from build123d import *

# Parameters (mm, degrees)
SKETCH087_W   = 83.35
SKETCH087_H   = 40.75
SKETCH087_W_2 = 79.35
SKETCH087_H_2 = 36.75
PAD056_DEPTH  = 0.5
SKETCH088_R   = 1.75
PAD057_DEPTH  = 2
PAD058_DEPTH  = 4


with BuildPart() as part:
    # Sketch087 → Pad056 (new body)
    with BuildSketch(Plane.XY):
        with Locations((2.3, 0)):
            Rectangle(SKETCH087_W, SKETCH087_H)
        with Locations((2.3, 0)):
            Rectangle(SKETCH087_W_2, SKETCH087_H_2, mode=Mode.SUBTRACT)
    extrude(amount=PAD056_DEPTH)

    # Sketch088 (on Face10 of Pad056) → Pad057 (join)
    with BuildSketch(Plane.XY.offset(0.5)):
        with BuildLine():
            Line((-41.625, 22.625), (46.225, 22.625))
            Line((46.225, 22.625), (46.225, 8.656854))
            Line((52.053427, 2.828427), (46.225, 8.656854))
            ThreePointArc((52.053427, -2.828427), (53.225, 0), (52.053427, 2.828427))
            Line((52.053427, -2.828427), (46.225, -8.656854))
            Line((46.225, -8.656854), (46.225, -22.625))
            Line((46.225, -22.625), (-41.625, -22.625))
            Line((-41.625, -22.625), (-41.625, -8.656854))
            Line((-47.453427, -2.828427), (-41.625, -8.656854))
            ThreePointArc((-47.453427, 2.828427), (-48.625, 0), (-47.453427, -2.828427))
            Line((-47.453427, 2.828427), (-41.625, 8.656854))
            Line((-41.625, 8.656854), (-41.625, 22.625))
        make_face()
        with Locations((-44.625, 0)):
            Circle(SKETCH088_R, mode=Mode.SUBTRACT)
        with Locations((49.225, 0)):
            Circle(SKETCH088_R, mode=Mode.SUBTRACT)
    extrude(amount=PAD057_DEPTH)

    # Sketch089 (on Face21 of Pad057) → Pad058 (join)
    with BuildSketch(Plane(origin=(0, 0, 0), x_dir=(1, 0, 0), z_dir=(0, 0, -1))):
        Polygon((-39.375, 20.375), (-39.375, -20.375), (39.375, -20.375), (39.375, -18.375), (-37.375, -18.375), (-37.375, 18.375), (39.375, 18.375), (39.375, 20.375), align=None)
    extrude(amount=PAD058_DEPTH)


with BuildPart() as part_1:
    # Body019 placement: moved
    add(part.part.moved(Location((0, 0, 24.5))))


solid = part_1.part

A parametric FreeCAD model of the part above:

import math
import FreeCAD as App
import Part
import Sketcher
Q = App.Units.Quantity

doc = App.newDocument("Part")
body = doc.addObject("PartDesign::Body", "Body")

# Sketch on XY plane
sketch1 = body.newObject("Sketcher::SketchObject", "Sketch")
sketch1.AttachmentSupport = (doc.getObject("XY_Plane"), [""])
sketch1.MapMode = "FlatFace"
sketch1.addGeometry(Part.LineSegment(App.Vector(-39.375, 20.375, 0), App.Vector(-39.375, -20.375, 0)), False)
sketch1.addGeometry(Part.LineSegment(App.Vector(-39.375, -20.375, 0), App.Vector(43.975, -20.375, 0)), False)
sketch1.addGeometry(Part.LineSegment(App.Vector(43.975, -20.375, 0), App.Vector(43.975, 20.375, 0)), False)
sketch1.addGeometry(Part.LineSegment(App.Vector(43.975, 20.375, 0), App.Vector(-39.375, 20.375, 0)), False)
sketch1.addGeometry(Part.LineSegment(App.Vector(41.975, -18.375, 0), App.Vector(-37.375, -18.375, 0)), False)
sketch1.addGeometry(Part.LineSegment(App.Vector(-37.375, -18.375, 0), App.Vector(-37.375, 18.375, 0)), False)
sketch1.addGeometry(Part.LineSegment(App.Vector(-37.375, 18.375, 0), App.Vector(41.975, 18.375, 0)), False)
sketch1.addGeometry(Part.LineSegment(App.Vector(41.975, 18.375, 0), App.Vector(41.975, -18.375, 0)), False)
sketch1.addConstraint(Sketcher.Constraint("Coincident", 0, 2, 1, 1))
sketch1.addConstraint(Sketcher.Constraint("Coincident", 1, 2, 2, 1))
sketch1.addConstraint(Sketcher.Constraint("Coincident", 2, 2, 3, 1))
sketch1.addConstraint(Sketcher.Constraint("Coincident", 3, 2, 0, 1))
sketch1.addConstraint(Sketcher.Constraint("Coincident", 4, 2, 5, 1))
sketch1.addConstraint(Sketcher.Constraint("Coincident", 5, 2, 6, 1))
sketch1.addConstraint(Sketcher.Constraint("Coincident", 6, 2, 7, 1))
sketch1.addConstraint(Sketcher.Constraint("Coincident", 7, 2, 4, 1))
sketch1.addConstraint(Sketcher.Constraint("Vertical", 0))
sketch1.addConstraint(Sketcher.Constraint("Horizontal", 1))
sketch1.addConstraint(Sketcher.Constraint("Vertical", 2))
sketch1.addConstraint(Sketcher.Constraint("Horizontal", 3))
sketch1.addConstraint(Sketcher.Constraint("Horizontal", 4))
sketch1.addConstraint(Sketcher.Constraint("Vertical", 5))
sketch1.addConstraint(Sketcher.Constraint("Horizontal", 6))
sketch1.addConstraint(Sketcher.Constraint("Vertical", 7))
sketch1.addConstraint(Sketcher.Constraint("DistanceX", 0, 2, 4, 2, Q("2 mm")))
sketch1.addConstraint(Sketcher.Constraint("DistanceY", 0, 2, 4, 2, Q("2 mm")))
sketch1.addConstraint(Sketcher.Constraint("DistanceY", 5, 2, 3, 2, Q("2 mm")))
sketch1.addConstraint(Sketcher.Constraint("DistanceX", 6, 2, 2, 2, Q("2 mm")))
sketch1.addConstraint(Sketcher.Constraint("DistanceX", 1, 1, 1, 2, Q("83.35 mm")))
sketch1.addConstraint(Sketcher.Constraint("DistanceY", 0, 2, 0, 1, Q("40.75 mm")))
sketch1.addConstraint(Sketcher.Constraint("DistanceX", 0, 2, -1, 1, Q("39.375 mm")))
sketch1.addConstraint(Sketcher.Constraint("DistanceY", 0, 2, -1, 1, Q("20.375 mm")))
pad1 = body.newObject("PartDesign::Pad", "Pad")
pad1.Profile = sketch1
pad1.Length = 0.5

# Sketch on XY plane
sketch2 = body.newObject("Sketcher::SketchObject", "Sketch001")
sketch2.AttachmentSupport = (doc.getObject("XY_Plane"), [""])
sketch2.MapMode = "FlatFace"
sketch2.AttachmentOffset = App.Placement(App.Vector(0, 0, 0.5), App.Rotation())
sketch2.addGeometry(Part.LineSegment(App.Vector(46.225, 22.625, 0), App.Vector(-41.625, 22.625, 0)), False)
sketch2.addGeometry(Part.LineSegment(App.Vector(-41.625, 22.625, 0), App.Vector(-41.625, 8.656854, 0)), False)
sketch2.addGeometry(Part.LineSegment(App.Vector(-41.625, 8.656854, 0), App.Vector(-47.453427, 2.828427, 0)), False)
sketch2.addGeometry(Part.ArcOfCircle(Part.Circle(App.Vector(-44.625001, 0, 0), App.Vector(0, 0, 1), 3.999999), math.radians(134.999994), math.radians(225.000006)), False)
sketch2.addGeometry(Part.LineSegment(App.Vector(-47.453427, -2.828427, 0), App.Vector(-41.625, -8.656854, 0)), False)
sketch2.addGeometry(Part.LineSegment(App.Vector(-41.625, -8.656854, 0), App.Vector(-41.625, -22.625, 0)), False)
sketch2.addGeometry(Part.LineSegment(App.Vector(-41.625, -22.625, 0), App.Vector(46.225, -22.625, 0)), False)
sketch2.addGeometry(Part.LineSegment(App.Vector(46.225, -22.625, 0), App.Vector(46.225, -8.656854, 0)), False)
sketch2.addGeometry(Part.LineSegment(App.Vector(46.225, -8.656854, 0), App.Vector(52.053427, -2.828427, 0)), False)
sketch2.addGeometry(Part.ArcOfCircle(Part.Circle(App.Vector(49.225001, 0, 0), App.Vector(0, 0, 1), 3.999999), math.radians(-45.000006), math.radians(45.000006)), False)
sketch2.addGeometry(Part.LineSegment(App.Vector(52.053427, 2.828427, 0), App.Vector(46.225, 8.656854, 0)), False)
sketch2.addGeometry(Part.LineSegment(App.Vector(46.225, 8.656854, 0), App.Vector(46.225, 22.625, 0)), False)
sketch2.addGeometry(Part.Circle(App.Vector(49.225, 0, 0), App.Vector(0, 0, 1), 1.75), False)
sketch2.addGeometry(Part.Circle(App.Vector(-44.625, 0, 0), App.Vector(0, 0, 1), 1.75), False)
sketch2.addConstraint(Sketcher.Constraint("Coincident", 0, 2, 1, 1))
sketch2.addConstraint(Sketcher.Constraint("Coincident", 1, 2, 2, 1))
sketch2.addConstraint(Sketcher.Constraint("Tangent", 2, 2, 3, 1))
sketch2.addConstraint(Sketcher.Constraint("Tangent", 3, 2, 4, 1))
sketch2.addConstraint(Sketcher.Constraint("Coincident", 4, 2, 5, 1))
sketch2.addConstraint(Sketcher.Constraint("Coincident", 5, 2, 6, 1))
sketch2.addConstraint(Sketcher.Constraint("Coincident", 6, 2, 7, 1))
sketch2.addConstraint(Sketcher.Constraint("Coincident", 7, 2, 8, 1))
sketch2.addConstraint(Sketcher.Constraint("Tangent", 8, 2, 9, 1))
sketch2.addConstraint(Sketcher.Constraint("Tangent", 9, 2, 10, 1))
sketch2.addConstraint(Sketcher.Constraint("Coincident", 10, 2, 11, 1))
sketch2.addConstraint(Sketcher.Constraint("Coincident", 11, 2, 0, 1))
sketch2.addConstraint(Sketcher.Constraint("Horizontal", 0))
sketch2.addConstraint(Sketcher.Constraint("Vertical", 1))
sketch2.addConstraint(Sketcher.Constraint("Vertical", 5))
sketch2.addConstraint(Sketcher.Constraint("Horizontal", 6))
sketch2.addConstraint(Sketcher.Constraint("Vertical", 7))
sketch2.addConstraint(Sketcher.Constraint("Vertical", 11))
sketch2.addConstraint(Sketcher.Constraint("Coincident", 12, 3, 9, 3))
sketch2.addConstraint(Sketcher.Constraint("Coincident", 13, 3, 3, 3))
sketch2.addConstraint(Sketcher.Constraint("Equal", 3, 9))
sketch2.addConstraint(Sketcher.Constraint("Equal", 12, 13))
sketch2.addConstraint(Sketcher.Constraint("Symmetric", 2, 2, 3, 2, -1))
sketch2.addConstraint(Sketcher.Constraint("Symmetric", 0, 2, 5, 2, -1))
sketch2.addConstraint(Sketcher.Constraint("Symmetric", 8, 2, 9, 2, -1))
sketch2.addConstraint(Sketcher.Constraint("Perpendicular", 2, 4))
sketch2.addConstraint(Sketcher.Constraint("Perpendicular", 4, 8))
sketch2.addConstraint(Sketcher.Constraint("Horizontal", 4, 2, 7, 2))
sketch2.addConstraint(Sketcher.Constraint("Horizontal", 1, 2, 10, 2))
sketch2.addConstraint(Sketcher.Constraint("Radius", 3, Q("3.999999 mm")))
sketch2.addConstraint(Sketcher.Constraint("Diameter", 12, Q("3.5 mm")))
sketch2.addConstraint(Sketcher.Constraint("DistanceX", 13, 3, 0, 2, Q("3 mm")))
sketch2.addConstraint(Sketcher.Constraint("DistanceX", 0, 2, 0, 1, Q("87.85 mm")))
sketch2.addConstraint(Sketcher.Constraint("DistanceX", 3, 3, -1, 1, Q("44.625001 mm")))
sketch2.addConstraint(Sketcher.Constraint("DistanceY", -1, 1, 0, 2, Q("22.625 mm")))
pad2 = body.newObject("PartDesign::Pad", "Pad001")
pad2.Profile = sketch2
pad2.Length = 2

# Sketch on XY plane
sketch3 = body.newObject("Sketcher::SketchObject", "Sketch002")
sketch3.AttachmentSupport = (doc.getObject("XY_Plane"), [""])
sketch3.MapMode = "FlatFace"
sketch3.addGeometry(Part.LineSegment(App.Vector(-39.375, -20.375, 0), App.Vector(-39.375, 20.375, 0)), False)
sketch3.addGeometry(Part.LineSegment(App.Vector(-39.375, 20.375, 0), App.Vector(39.375, 20.375, 0)), False)
sketch3.addGeometry(Part.LineSegment(App.Vector(39.375, 20.375, 0), App.Vector(39.375, 18.375, 0)), False)
sketch3.addGeometry(Part.LineSegment(App.Vector(39.375, 18.375, 0), App.Vector(-37.375, 18.375, 0)), False)
sketch3.addGeometry(Part.LineSegment(App.Vector(-37.375, 18.375, 0), App.Vector(-37.375, -18.375, 0)), False)
sketch3.addGeometry(Part.LineSegment(App.Vector(-37.375, -18.375, 0), App.Vector(39.375, -18.375, 0)), False)
sketch3.addGeometry(Part.LineSegment(App.Vector(39.375, -18.375, 0), App.Vector(39.375, -20.375, 0)), False)
sketch3.addGeometry(Part.LineSegment(App.Vector(39.375, -20.375, 0), App.Vector(-39.375, -20.375, 0)), False)
sketch3.addConstraint(Sketcher.Constraint("Coincident", 0, 2, 1, 1))
sketch3.addConstraint(Sketcher.Constraint("Coincident", 1, 2, 2, 1))
sketch3.addConstraint(Sketcher.Constraint("Coincident", 2, 2, 3, 1))
sketch3.addConstraint(Sketcher.Constraint("Coincident", 3, 2, 4, 1))
sketch3.addConstraint(Sketcher.Constraint("Coincident", 4, 2, 5, 1))
sketch3.addConstraint(Sketcher.Constraint("Coincident", 5, 2, 6, 1))
sketch3.addConstraint(Sketcher.Constraint("Coincident", 6, 2, 7, 1))
sketch3.addConstraint(Sketcher.Constraint("Coincident", 7, 2, 0, 1))
sketch3.addConstraint(Sketcher.Constraint("Vertical", 0))
sketch3.addConstraint(Sketcher.Constraint("Horizontal", 1))
sketch3.addConstraint(Sketcher.Constraint("Vertical", 2))
sketch3.addConstraint(Sketcher.Constraint("Horizontal", 3))
sketch3.addConstraint(Sketcher.Constraint("Vertical", 4))
sketch3.addConstraint(Sketcher.Constraint("Horizontal", 5))
sketch3.addConstraint(Sketcher.Constraint("Vertical", 6))
sketch3.addConstraint(Sketcher.Constraint("Horizontal", 7))
sketch3.addConstraint(Sketcher.Constraint("Symmetric", 0, 2, 6, 2, -1, 1))
sketch3.addConstraint(Sketcher.Constraint("Symmetric", 2, 2, 5, 2, -1))
sketch3.addConstraint(Sketcher.Constraint("DistanceY", 2, 2, 2, 1, Q("2 mm")))
sketch3.addConstraint(Sketcher.Constraint("DistanceX", 0, 2, 3, 2, Q("2 mm")))
sketch3.addConstraint(Sketcher.Constraint("DistanceX", 1, 1, 1, 2, Q("78.75 mm")))
sketch3.addConstraint(Sketcher.Constraint("DistanceY", 0, 1, 0, 2, Q("40.75 mm")))
pad3 = body.newObject("PartDesign::Pad", "Pad002")
pad3.Profile = sketch3
pad3.Length = 4
pad3.Reversed = True
body2 = doc.addObject("PartDesign::Body", "Body001")
doc.recompute()

body.Placement = App.Placement(App.Vector(0, 0, 24.5), App.Rotation(App.Vector(0, 0, 1), 0))
boolean = body2.newObject("PartDesign::Boolean", "Boolean")
boolean.Type = "Fuse"
boolean.addObjects([body])

doc.recompute()
